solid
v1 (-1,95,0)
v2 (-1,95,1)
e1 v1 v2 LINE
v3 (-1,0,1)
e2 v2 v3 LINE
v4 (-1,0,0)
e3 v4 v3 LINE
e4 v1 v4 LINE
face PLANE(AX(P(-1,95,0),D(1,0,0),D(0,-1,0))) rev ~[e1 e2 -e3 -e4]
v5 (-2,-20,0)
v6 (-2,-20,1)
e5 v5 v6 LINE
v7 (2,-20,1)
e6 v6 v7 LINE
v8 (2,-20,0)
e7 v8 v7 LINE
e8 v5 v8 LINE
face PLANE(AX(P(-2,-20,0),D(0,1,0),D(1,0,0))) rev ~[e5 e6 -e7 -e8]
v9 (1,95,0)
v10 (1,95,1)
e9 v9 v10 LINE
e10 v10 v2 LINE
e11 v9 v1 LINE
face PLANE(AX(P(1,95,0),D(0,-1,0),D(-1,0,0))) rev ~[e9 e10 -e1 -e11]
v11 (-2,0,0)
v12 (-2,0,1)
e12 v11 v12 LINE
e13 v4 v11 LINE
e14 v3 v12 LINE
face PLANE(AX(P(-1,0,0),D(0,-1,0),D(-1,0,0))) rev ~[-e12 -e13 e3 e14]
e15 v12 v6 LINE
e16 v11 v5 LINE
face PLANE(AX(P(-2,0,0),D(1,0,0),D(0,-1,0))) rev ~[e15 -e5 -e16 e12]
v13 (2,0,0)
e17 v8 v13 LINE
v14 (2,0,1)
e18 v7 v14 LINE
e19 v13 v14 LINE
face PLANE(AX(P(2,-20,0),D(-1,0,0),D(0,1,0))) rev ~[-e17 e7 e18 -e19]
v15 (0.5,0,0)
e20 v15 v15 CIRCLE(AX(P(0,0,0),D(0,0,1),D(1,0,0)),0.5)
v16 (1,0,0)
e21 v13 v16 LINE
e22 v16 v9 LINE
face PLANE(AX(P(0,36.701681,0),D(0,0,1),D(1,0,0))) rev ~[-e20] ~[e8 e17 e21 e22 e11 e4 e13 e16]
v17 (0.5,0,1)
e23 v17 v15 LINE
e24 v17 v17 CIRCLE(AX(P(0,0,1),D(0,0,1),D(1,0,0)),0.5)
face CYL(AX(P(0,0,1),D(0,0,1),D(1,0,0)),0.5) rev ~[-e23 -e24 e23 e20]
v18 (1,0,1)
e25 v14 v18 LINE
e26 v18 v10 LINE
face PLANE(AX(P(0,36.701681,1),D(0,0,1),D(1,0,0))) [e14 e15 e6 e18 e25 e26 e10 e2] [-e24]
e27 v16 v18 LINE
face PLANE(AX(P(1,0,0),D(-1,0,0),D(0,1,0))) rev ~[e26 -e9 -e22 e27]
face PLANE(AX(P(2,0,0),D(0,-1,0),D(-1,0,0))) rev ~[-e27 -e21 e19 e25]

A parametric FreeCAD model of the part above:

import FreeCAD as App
import Part
import Sketcher

V = App.Vector

doc = App.newDocument("Part")
body = doc.addObject("PartDesign::Body", "Body")

# Sketch on XY plane
sketch1 = doc.addObject("Sketcher::SketchObject", "Sketch")
body.addObject(sketch1)
sketch1.AttachmentSupport = (doc.XY_Plane, [""])
sketch1.MapMode = "FlatFace"
sketch1.addGeometry(Part.LineSegment(V(1, 95, 0), V(-1, 95, 0)), False)
sketch1.addGeometry(Part.LineSegment(V(-1, 95, 0), V(-1, 0, 0)), False)
sketch1.addGeometry(Part.LineSegment(V(-1, 0, 0), V(-2, 0, 0)), False)
sketch1.addGeometry(Part.LineSegment(V(-2, 0, 0), V(-2, -20, 0)), False)
sketch1.addGeometry(Part.LineSegment(V(-2, -20, 0), V(2, -20, 0)), False)
sketch1.addGeometry(Part.LineSegment(V(2, -20, 0), V(2, 0, 0)), False)
sketch1.addGeometry(Part.LineSegment(V(2, 0, 0), V(1, 0, 0)), False)
sketch1.addGeometry(Part.LineSegment(V(1, 0, 0), V(1, 95, 0)), False)
sketch1.addConstraint(Sketcher.Constraint("Coincident", 0, 2, 1, 1))
sketch1.addConstraint(Sketcher.Constraint("Coincident", 1, 2, 2, 1))
sketch1.addConstraint(Sketcher.Constraint("Coincident", 2, 2, 3, 1))
sketch1.addConstraint(Sketcher.Constraint("Coincident", 3, 2, 4, 1))
sketch1.addConstraint(Sketcher.Constraint("Coincident", 4, 2, 5, 1))
sketch1.addConstraint(Sketcher.Constraint("Coincident", 5, 2, 6, 1))
sketch1.addConstraint(Sketcher.Constraint("Coincident", 6, 2, 7, 1))
sketch1.addConstraint(Sketcher.Constraint("Coincident", 7, 2, 0, 1))
sketch1.addConstraint(Sketcher.Constraint("Horizontal", 0))
sketch1.addConstraint(Sketcher.Constraint("Vertical", 1))
sketch1.addConstraint(Sketcher.Constraint("Horizontal", 2))
sketch1.addConstraint(Sketcher.Constraint("Vertical", 3))
sketch1.addConstraint(Sketcher.Constraint("Horizontal", 4))
sketch1.addConstraint(Sketcher.Constraint("Vertical", 5))
sketch1.addConstraint(Sketcher.Constraint("Horizontal", 6))
sketch1.addConstraint(Sketcher.Constraint("Vertical", 7))
sketch1.addConstraint(Sketcher.Constraint("Symmetric", 2, 2, 5, 2, -1, 1))
sketch1.addConstraint(Sketcher.Constraint("Symmetric", 1, 2, 6, 2, -2))
sketch1.addConstraint(Sketcher.Constraint("DistanceX", 0, 2, 0, 1, 2.0))
sketch1.addConstraint(Sketcher.Constraint("DistanceX", 2, 2, 2, 1, 1.0))
sketch1.addConstraint(Sketcher.Constraint("DistanceY", 1, 2, 1, 1, 95.0))
sketch1.addConstraint(Sketcher.Constraint("DistanceY", 3, 2, 3, 1, 20.0))
pad1 = doc.addObject("PartDesign::Pad", "Pad")
body.addObject(pad1)
pad1.Profile = sketch1
pad1.Length = 1

# Sketch on XY plane
sketch2 = doc.addObject("Sketcher::SketchObject", "Sketch001")
body.addObject(sketch2)
sketch2.AttachmentSupport = (doc.XY_Plane, [""])
sketch2.MapMode = "FlatFace"
sketch2.AttachmentOffset = App.Placement(V(0, 0, 1), App.Rotation())
sketch2.addGeometry(Part.Circle(V(0, 0, 0), V(0, 0, 1), 0.5), False)
sketch2.addConstraint(Sketcher.Constraint("Coincident", 0, 3, -1, 1))
sketch2.addConstraint(Sketcher.Constraint("Diameter", 0, 1.0))
pocket1 = doc.addObject("PartDesign::Pocket", "Pocket")
body.addObject(pocket1)
pocket1.Profile = sketch2
pocket1.Type = "ThroughAll"

doc.recompute()
